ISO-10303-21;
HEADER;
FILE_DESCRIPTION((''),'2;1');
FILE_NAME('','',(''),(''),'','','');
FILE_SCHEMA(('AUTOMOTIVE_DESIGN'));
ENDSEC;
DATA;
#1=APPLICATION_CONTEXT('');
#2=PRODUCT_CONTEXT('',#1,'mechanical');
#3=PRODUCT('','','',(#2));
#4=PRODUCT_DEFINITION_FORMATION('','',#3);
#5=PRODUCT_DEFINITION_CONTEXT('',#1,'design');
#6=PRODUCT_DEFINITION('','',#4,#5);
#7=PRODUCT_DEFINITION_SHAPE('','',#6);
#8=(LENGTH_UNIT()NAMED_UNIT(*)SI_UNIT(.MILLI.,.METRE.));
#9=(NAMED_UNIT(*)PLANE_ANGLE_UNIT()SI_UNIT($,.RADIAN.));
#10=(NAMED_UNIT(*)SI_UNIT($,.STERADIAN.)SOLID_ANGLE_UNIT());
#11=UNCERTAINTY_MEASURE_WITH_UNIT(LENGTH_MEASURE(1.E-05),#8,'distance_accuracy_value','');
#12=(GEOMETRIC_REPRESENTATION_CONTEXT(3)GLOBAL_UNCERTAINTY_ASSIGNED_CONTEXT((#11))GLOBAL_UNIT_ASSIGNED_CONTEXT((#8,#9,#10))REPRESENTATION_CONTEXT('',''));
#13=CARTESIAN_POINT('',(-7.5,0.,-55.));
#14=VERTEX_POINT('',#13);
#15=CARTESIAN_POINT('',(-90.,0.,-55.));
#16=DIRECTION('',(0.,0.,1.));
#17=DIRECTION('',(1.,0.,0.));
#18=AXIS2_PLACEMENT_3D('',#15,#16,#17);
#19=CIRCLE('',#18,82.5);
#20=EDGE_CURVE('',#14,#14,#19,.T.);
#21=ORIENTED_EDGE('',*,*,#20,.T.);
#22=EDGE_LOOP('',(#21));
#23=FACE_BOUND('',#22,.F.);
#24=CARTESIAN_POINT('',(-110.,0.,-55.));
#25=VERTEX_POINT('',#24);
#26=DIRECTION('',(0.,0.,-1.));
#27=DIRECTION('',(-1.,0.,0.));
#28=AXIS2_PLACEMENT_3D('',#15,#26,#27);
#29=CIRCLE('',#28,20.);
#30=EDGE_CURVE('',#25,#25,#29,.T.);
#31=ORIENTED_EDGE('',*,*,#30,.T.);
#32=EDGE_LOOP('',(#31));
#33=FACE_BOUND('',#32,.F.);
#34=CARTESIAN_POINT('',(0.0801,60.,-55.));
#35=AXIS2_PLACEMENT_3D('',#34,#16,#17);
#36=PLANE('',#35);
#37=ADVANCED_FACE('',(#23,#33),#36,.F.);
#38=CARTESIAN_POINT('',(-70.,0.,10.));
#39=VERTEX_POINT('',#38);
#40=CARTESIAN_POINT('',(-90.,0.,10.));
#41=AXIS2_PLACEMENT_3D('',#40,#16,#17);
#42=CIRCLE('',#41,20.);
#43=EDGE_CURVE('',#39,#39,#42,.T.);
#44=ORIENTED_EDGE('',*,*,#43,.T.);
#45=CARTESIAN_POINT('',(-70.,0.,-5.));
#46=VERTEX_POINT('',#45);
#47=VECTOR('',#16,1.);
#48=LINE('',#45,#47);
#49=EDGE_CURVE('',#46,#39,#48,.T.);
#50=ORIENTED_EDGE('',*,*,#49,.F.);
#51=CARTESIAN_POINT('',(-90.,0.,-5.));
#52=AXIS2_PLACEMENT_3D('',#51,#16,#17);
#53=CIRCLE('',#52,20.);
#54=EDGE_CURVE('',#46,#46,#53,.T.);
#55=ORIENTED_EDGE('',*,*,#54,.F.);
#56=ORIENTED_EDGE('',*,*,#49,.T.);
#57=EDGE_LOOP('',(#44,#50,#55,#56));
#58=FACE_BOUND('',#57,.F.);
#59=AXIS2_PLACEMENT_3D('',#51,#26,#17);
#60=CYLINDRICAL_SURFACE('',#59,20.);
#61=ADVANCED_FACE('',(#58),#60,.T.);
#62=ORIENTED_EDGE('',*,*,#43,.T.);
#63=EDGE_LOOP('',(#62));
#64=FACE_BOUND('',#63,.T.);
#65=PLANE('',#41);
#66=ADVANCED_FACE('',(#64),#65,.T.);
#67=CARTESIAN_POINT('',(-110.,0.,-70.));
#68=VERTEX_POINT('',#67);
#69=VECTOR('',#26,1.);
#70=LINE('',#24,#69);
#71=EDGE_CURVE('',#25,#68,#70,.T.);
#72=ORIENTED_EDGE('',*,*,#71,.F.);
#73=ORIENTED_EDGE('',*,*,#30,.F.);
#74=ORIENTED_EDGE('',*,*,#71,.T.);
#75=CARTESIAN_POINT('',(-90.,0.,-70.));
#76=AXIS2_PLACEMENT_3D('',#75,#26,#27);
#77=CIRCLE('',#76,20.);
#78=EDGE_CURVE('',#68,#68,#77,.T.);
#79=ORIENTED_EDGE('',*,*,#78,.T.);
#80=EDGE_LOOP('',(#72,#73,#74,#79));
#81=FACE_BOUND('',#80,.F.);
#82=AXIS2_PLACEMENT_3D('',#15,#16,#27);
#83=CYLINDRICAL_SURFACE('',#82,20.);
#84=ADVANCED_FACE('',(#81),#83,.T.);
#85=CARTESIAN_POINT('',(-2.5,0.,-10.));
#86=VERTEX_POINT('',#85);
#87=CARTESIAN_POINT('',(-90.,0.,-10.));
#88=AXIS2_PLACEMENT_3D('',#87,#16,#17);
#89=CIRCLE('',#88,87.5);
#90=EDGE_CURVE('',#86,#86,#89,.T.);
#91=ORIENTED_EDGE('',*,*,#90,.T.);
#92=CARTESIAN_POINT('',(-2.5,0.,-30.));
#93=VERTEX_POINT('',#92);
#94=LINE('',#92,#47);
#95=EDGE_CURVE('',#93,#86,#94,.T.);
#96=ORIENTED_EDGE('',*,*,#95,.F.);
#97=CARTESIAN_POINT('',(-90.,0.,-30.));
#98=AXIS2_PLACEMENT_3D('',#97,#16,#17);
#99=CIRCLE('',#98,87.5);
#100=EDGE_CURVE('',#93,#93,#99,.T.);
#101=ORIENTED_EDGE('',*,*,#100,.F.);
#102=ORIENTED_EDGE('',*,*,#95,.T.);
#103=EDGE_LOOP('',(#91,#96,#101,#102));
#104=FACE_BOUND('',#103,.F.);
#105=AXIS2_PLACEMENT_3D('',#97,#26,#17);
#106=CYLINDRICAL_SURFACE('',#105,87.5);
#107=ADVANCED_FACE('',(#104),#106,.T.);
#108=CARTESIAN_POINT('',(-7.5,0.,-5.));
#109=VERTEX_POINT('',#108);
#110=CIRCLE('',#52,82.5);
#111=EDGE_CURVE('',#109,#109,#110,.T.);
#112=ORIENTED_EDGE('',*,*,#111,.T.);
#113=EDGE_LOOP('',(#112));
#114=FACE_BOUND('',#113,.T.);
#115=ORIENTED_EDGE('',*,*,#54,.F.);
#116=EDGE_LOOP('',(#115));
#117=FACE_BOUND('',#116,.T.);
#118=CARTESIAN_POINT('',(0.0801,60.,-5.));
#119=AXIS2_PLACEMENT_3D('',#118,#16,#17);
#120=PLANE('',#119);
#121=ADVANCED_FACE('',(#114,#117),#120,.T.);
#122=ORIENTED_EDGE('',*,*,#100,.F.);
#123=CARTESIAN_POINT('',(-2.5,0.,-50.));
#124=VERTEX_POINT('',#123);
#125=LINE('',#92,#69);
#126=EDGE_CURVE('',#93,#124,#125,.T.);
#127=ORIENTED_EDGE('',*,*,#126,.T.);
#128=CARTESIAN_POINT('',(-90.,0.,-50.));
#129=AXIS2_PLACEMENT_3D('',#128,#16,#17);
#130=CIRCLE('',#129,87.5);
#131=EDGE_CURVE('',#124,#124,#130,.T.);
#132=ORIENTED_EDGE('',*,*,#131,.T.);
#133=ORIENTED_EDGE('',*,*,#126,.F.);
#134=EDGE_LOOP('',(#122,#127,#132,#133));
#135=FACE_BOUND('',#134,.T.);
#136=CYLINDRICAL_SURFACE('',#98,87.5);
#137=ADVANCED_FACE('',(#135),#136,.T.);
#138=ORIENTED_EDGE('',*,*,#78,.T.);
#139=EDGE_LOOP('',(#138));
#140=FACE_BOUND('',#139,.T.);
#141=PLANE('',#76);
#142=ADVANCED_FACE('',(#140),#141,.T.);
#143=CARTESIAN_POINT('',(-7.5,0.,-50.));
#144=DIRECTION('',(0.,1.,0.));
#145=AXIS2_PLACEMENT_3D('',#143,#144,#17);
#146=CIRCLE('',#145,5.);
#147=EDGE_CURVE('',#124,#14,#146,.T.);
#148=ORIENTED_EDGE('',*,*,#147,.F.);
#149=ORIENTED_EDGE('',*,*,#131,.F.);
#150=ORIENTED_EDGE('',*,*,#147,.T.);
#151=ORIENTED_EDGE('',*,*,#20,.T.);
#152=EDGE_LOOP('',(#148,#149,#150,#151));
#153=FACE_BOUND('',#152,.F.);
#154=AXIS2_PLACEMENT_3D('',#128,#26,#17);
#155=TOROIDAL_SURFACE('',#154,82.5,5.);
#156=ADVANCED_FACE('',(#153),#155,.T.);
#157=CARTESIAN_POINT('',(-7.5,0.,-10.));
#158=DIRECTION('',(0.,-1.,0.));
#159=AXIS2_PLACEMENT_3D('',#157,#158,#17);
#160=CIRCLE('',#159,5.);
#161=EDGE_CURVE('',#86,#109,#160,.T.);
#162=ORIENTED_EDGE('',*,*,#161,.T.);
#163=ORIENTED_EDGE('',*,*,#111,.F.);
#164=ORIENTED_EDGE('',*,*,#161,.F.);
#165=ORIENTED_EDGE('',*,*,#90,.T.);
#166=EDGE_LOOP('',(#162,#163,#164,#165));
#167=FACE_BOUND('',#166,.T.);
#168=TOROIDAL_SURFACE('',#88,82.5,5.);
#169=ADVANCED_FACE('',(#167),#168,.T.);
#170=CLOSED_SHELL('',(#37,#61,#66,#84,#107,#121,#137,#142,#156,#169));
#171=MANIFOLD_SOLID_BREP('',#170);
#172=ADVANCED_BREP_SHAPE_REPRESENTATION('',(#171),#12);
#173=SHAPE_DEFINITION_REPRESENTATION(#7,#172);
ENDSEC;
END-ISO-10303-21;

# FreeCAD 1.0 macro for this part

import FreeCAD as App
import Part
import Sketcher
from FreeCAD import Vector
Q = App.Units.Quantity


def edges_at(feature, points):
    """Names of the edges that pass closest to the given points."""
    edges = feature.Shape.Edges
    near = lambda p: min(range(len(edges)), key=lambda i: edges[i].distToShape(Part.Vertex(*p))[0])
    return sorted({f"Edge{near(p) + 1}" for p in points})

doc = App.newDocument("Part")
body = doc.addObject("PartDesign::Body", "Body")

sketch1 = doc.addObject("Sketcher::SketchObject", "Sketch")
body.addObject(sketch1)
sketch1.AttachmentSupport = (doc.XY_Plane, [""])
sketch1.MapMode = "FlatFace"
sketch1.AttachmentOffset = App.Placement(Vector(0, 0, -30), App.Rotation())
sketch1.addGeometry(Part.Circle(Vector(-90, 0, 0), Vector(0, 0, 1), 87.5), False)
sketch1.addConstraint([
    Sketcher.Constraint("PointOnObject", 0, 3, -1),
    Sketcher.Constraint("Diameter", 0, Q("175 mm")),
    Sketcher.Constraint("DistanceX", 0, 3, -1, 1, Q("90 mm")),
])
pad1 = doc.addObject("PartDesign::Pad", "Pad")
body.addObject(pad1)
pad1.Profile = sketch1
pad1.Length = 50
pad1.Midplane = True

sketch2 = doc.addObject("Sketcher::SketchObject", "Sketch001")
body.addObject(sketch2)
sketch2.AttachmentSupport = (doc.XY_Plane, [""])
sketch2.MapMode = "FlatFace"
sketch2.AttachmentOffset = App.Placement(Vector(0, 0, -5), App.Rotation())
sketch2.addGeometry(Part.Circle(Vector(-90, 0, 0), Vector(0, 0, 1), 20), False)
sketch2.addConstraint([
    Sketcher.Constraint("PointOnObject", 0, 3, -1),
    Sketcher.Constraint("Diameter", 0, Q("40 mm")),
    Sketcher.Constraint("DistanceX", 0, 3, -1, 1, Q("90 mm")),
])
pad2 = doc.addObject("PartDesign::Pad", "Pad001")
body.addObject(pad2)
pad2.Profile = sketch2
pad2.Length = 15

sketch3 = doc.addObject("Sketcher::SketchObject", "Sketch002")
body.addObject(sketch3)
sketch3.AttachmentSupport = (doc.XY_Plane, [""])
sketch3.MapMode = "FlatFace"
sketch3.AttachmentOffset = App.Placement(Vector(0, 0, -55), App.Rotation())
sketch3.addGeometry(Part.Circle(Vector(-90, 0, 0), Vector(0, 0, 1), 20), False)
sketch3.addConstraint([
    Sketcher.Constraint("PointOnObject", 0, 3, -1),
    Sketcher.Constraint("Diameter", 0, Q("40 mm")),
    Sketcher.Constraint("DistanceX", 0, 3, -1, 1, Q("90 mm")),
])
pad3 = doc.addObject("PartDesign::Pad", "Pad002")
body.addObject(pad3)
pad3.Profile = sketch3
pad3.Length = 15
pad3.Reversed = True
doc.recompute()

fillet = doc.addObject("PartDesign::Fillet", "Fillet")
body.addObject(fillet)
fillet.Base = (pad3, edges_at(pad3, [(-177.5, 0, -5)]))
fillet.Radius = 5
doc.recompute()

fillet2 = doc.addObject("PartDesign::Fillet", "Fillet001")
body.addObject(fillet2)
fillet2.Base = (fillet, edges_at(fillet, [(-177.5, 0, -55)]))
fillet2.Radius = 5

doc.recompute()
